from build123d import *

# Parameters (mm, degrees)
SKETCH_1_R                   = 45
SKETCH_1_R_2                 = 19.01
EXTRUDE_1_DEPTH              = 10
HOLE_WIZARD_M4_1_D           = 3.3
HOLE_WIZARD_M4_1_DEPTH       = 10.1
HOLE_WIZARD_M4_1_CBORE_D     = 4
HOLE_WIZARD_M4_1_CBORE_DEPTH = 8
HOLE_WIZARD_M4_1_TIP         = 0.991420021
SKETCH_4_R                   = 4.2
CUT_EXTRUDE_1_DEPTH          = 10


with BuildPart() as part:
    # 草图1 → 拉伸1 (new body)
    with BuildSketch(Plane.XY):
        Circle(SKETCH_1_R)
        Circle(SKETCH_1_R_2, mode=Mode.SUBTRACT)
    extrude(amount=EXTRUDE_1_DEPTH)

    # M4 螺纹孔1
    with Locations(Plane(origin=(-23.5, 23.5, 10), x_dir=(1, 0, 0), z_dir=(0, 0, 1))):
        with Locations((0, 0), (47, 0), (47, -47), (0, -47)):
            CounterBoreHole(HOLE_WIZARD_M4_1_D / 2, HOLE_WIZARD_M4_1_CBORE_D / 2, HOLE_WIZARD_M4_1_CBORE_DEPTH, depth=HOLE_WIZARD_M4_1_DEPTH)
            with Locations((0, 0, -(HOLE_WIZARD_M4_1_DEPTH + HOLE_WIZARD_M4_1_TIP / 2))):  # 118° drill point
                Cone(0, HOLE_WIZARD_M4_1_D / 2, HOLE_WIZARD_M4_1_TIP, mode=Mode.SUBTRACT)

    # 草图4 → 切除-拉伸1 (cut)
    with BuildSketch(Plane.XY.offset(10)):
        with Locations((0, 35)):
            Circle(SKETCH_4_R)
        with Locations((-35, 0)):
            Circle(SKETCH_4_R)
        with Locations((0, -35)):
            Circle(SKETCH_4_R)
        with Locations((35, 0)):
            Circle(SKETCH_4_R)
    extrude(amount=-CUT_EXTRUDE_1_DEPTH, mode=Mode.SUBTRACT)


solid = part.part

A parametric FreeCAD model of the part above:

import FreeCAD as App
import Part
import Sketcher

V = App.Vector
Q = App.Units.Quantity

doc = App.newDocument("Part")
body = doc.addObject("PartDesign::Body", "Body")

# Sketch on XY plane
sketch1 = body.newObject("Sketcher::SketchObject", "Sketch")
sketch1.AttachmentSupport = (doc.getObject("XY_Plane"), [""])
sketch1.MapMode = "FlatFace"
sketch1.addGeometry(Part.Circle(V(0, 0, 0), V(0, 0, 1), 45), False)
sketch1.addGeometry(Part.Circle(V(0, 0, 0), V(0, 0, 1), 19), False)
sketch1.addConstraint(Sketcher.Constraint("Coincident", 0, 3, -1, 1))
sketch1.addConstraint(Sketcher.Constraint("Coincident", 1, 3, -1, 1))
sketch1.addConstraint(Sketcher.Constraint("Diameter", 0, Q("90 mm")))
sketch1.addConstraint(Sketcher.Constraint("Diameter", 1, Q("38.02 mm")))
pad1 = body.newObject("PartDesign::Pad", "Pad")
pad1.Profile = sketch1
pad1.Length = 10

# Sketch on XY plane
sketch2 = body.newObject("Sketcher::SketchObject", "Sketch001")
sketch2.AttachmentSupport = (doc.getObject("XY_Plane"), [""])
sketch2.MapMode = "FlatFace"
sketch2.AttachmentOffset = App.Placement(V(0, 0, 10), App.Rotation())
sketch2.addGeometry(Part.Circle(V(-23.5, 23.5, 0), V(0, 0, 1), 1.6), False)
sketch2.addGeometry(Part.Circle(V(23.5, 23.5, 0), V(0, 0, 1), 1.6), False)
sketch2.addGeometry(Part.Circle(V(23.5, -23.5, 0), V(0, 0, 1), 1.6), False)
sketch2.addGeometry(Part.Circle(V(-23.5, -23.5, 0), V(0, 0, 1), 1.6), False)
sketch2.addConstraint(Sketcher.Constraint("Equal", 0, 1))
sketch2.addConstraint(Sketcher.Constraint("Equal", 1, 2))
sketch2.addConstraint(Sketcher.Constraint("Equal", 2, 3))
sketch2.addConstraint(Sketcher.Constraint("Symmetric", 0, 3, 2, 3, -1, 1))
sketch2.addConstraint(Sketcher.Constraint("Symmetric", 1, 3, 3, 3, -1, 1))
sketch2.addConstraint(Sketcher.Constraint("Symmetric", 0, 3, 1, 3, -2))
sketch2.addConstraint(Sketcher.Constraint("Diameter", 0, Q("3.3 mm")))
sketch2.addConstraint(Sketcher.Constraint("DistanceX", 0, 3, 1, 3, Q("47 mm")))
sketch2.addConstraint(Sketcher.Constraint("DistanceY", 2, 3, 1, 3, Q("47 mm")))
doc.recompute()
hole = body.newObject("PartDesign::Hole", "Hole")
hole.Profile = sketch2
hole.ThreadType = "None"
hole.Diameter = 3.3
hole.DepthType = "Dimension"
hole.Depth = 10.1
hole.DrillPoint = "Angled"
hole.DrillPointAngle = 118
hole.HoleCutType = "Counterbore"
hole.HoleCutDiameter = 4
hole.HoleCutDepth = 8

# Sketch on XY plane
sketch3 = body.newObject("Sketcher::SketchObject", "Sketch002")
sketch3.AttachmentSupport = (doc.getObject("XY_Plane"), [""])
sketch3.MapMode = "FlatFace"
sketch3.AttachmentOffset = App.Placement(V(0, 0, 10), App.Rotation())
sketch3.addGeometry(Part.Circle(V(0, 35, 0), V(0, 0, 1), 4.2), False)
sketch3.addGeometry(Part.Circle(V(-35, 0, 0), V(0, 0, 1), 4.2), False)
sketch3.addGeometry(Part.Circle(V(0, -35, 0), V(0, 0, 1), 4.2), False)
sketch3.addGeometry(Part.Circle(V(35, 0, 0), V(0, 0, 1), 4.2), False)
sketch3.addConstraint(Sketcher.Constraint("Equal", 0, 1))
sketch3.addConstraint(Sketcher.Constraint("Equal", 1, 2))
sketch3.addConstraint(Sketcher.Constraint("Equal", 2, 3))
sketch3.addConstraint(Sketcher.Constraint("Symmetric", 0, 3, 2, 3, -1, 1))
sketch3.addConstraint(Sketcher.Constraint("Symmetric", 1, 3, 3, 3, -1, 1))
sketch3.addConstraint(Sketcher.Constraint("PointOnObject", 0, 3, -2))
sketch3.addConstraint(Sketcher.Constraint("PointOnObject", 1, 3, -1))
sketch3.addConstraint(Sketcher.Constraint("Diameter", 0, Q("8.4 mm")))
sketch3.addConstraint(Sketcher.Constraint("DistanceY", -1, 1, 0, 3, Q("35 mm")))
sketch3.addConstraint(Sketcher.Constraint("DistanceX", 1, 3, -1, 1, Q("35 mm")))
pocket1 = body.newObject("PartDesign::Pocket", "Pocket")
pocket1.Profile = sketch3
pocket1.Length = 10

doc.recompute()
